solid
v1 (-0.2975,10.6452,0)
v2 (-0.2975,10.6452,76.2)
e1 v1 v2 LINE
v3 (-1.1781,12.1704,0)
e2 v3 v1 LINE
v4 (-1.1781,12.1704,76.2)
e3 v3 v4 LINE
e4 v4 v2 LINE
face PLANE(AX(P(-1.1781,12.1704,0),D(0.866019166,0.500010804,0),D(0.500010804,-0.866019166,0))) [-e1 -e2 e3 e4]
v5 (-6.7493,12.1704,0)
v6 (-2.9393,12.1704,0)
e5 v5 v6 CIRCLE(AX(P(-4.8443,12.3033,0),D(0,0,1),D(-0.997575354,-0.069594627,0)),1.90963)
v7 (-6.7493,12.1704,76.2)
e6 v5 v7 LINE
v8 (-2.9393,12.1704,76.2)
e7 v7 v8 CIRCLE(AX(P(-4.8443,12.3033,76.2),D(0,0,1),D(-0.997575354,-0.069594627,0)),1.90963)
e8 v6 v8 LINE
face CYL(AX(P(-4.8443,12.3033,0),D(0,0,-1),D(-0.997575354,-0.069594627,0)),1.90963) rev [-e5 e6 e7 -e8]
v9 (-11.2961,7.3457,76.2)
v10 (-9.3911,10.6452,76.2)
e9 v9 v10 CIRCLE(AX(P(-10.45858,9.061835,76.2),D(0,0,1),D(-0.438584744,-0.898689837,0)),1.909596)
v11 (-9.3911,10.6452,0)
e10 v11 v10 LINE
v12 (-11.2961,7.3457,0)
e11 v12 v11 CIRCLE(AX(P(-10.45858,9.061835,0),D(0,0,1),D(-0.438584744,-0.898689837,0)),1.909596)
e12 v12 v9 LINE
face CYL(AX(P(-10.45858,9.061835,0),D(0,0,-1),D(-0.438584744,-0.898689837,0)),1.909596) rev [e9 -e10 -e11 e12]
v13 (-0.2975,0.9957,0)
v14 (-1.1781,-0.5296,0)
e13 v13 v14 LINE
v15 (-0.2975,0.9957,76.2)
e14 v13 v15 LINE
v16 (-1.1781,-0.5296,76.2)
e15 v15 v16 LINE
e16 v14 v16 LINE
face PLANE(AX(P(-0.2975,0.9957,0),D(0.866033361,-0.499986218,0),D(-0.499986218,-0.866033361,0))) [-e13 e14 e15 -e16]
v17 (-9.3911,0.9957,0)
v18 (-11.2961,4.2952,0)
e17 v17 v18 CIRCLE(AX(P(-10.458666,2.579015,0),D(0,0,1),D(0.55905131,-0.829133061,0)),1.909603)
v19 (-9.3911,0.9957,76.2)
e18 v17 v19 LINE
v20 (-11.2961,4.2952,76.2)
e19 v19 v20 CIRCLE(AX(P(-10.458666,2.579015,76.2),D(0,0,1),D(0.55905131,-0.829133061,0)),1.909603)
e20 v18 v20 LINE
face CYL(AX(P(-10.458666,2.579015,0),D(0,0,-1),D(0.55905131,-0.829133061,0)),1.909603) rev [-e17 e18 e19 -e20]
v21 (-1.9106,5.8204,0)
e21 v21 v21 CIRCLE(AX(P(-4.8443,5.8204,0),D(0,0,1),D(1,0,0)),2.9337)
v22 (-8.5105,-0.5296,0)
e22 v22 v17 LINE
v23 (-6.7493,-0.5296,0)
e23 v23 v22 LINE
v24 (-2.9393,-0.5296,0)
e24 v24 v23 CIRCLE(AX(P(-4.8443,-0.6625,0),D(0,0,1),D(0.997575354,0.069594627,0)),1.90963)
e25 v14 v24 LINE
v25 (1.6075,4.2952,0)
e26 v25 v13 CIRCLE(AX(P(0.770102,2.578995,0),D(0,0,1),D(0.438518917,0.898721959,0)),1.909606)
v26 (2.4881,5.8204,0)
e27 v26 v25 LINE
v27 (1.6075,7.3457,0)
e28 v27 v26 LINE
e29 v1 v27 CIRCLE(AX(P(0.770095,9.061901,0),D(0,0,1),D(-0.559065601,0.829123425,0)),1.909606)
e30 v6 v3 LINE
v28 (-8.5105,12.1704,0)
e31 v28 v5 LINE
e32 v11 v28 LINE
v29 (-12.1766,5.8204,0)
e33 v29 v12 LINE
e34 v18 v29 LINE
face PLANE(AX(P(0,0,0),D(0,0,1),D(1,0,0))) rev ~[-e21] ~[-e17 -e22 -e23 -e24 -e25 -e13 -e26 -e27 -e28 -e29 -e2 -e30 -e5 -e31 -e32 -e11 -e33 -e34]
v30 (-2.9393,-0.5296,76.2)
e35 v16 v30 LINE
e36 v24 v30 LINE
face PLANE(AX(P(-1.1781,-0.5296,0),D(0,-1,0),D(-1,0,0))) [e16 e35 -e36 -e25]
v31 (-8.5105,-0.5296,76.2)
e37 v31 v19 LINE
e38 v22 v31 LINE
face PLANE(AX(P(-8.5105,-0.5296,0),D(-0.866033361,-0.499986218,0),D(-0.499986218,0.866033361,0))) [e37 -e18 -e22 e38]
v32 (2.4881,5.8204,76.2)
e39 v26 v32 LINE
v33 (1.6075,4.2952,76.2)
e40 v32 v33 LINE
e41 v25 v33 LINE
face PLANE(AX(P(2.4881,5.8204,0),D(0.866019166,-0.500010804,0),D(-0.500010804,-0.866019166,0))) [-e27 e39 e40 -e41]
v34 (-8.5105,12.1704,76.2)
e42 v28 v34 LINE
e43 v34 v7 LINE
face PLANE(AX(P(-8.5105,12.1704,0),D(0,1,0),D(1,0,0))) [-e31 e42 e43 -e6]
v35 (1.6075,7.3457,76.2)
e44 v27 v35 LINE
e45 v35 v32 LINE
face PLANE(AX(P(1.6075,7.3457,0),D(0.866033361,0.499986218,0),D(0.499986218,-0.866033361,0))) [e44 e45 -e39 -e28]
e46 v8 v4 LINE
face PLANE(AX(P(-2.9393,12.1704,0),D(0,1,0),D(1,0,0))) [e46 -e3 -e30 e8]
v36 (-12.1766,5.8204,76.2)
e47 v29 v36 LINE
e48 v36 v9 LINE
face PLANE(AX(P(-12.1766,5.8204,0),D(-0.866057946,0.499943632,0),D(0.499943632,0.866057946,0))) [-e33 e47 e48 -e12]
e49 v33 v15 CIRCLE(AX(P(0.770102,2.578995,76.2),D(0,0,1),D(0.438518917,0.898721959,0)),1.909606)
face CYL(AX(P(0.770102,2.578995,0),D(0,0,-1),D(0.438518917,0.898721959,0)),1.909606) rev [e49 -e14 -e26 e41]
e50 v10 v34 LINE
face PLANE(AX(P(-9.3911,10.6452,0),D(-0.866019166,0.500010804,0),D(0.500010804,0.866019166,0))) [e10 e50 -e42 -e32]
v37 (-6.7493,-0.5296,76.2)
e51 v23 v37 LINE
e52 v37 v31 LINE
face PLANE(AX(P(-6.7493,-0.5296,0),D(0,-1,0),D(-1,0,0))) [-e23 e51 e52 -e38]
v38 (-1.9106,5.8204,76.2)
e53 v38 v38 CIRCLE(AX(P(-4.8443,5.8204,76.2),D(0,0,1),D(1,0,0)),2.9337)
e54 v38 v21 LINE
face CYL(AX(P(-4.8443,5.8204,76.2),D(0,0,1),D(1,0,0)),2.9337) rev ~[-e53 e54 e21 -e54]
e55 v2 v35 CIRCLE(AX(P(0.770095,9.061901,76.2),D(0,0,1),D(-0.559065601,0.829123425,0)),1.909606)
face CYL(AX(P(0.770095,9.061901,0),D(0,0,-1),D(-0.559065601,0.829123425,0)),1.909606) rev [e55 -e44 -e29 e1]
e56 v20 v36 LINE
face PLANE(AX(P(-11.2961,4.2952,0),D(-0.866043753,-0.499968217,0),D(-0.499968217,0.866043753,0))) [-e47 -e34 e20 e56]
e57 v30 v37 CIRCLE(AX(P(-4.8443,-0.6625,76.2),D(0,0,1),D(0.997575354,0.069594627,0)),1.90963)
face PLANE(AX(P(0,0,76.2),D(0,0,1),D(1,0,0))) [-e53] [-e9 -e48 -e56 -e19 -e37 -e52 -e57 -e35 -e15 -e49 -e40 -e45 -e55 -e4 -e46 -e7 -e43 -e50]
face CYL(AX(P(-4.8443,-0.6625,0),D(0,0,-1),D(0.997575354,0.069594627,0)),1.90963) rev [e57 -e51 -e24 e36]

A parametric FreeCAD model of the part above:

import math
import FreeCAD as App
import Part
import Sketcher
from FreeCAD import Vector
Q = App.Units.Quantity

doc = App.newDocument("Part")
body = doc.addObject("PartDesign::Body", "Body")

# Sketch on XY plane
sketch1 = body.newObject("Sketcher::SketchObject", "Sketch")
sketch1.AttachmentSupport = (doc.getObject("XY_Plane"), [""])
sketch1.MapMode = "FlatFace"
sketch1.addGeometry([
    Part.ArcOfCircle(Part.Circle(Vector(-4.8443, 12.3033, 0), Vector(0, 0, 1), 1.90963), math.radians(-176.009296), math.radians(-3.990704)),  # 0
    Part.LineSegment(Vector(-6.7493, 12.1704, 0), Vector(-8.5105, 12.1704, 0)),  # 1
    Part.LineSegment(Vector(-8.5105, 12.1704, 0), Vector(-9.3911, 10.6452, 0)),  # 2
    Part.ArcOfCircle(Part.Circle(Vector(-10.4586, 9.0619, 0), Vector(0, 0, 1), 1.909646), math.radians(-116.012225), math.radians(56.011177)),  # 3
    Part.LineSegment(Vector(-11.2961, 7.3457, 0), Vector(-12.1766, 5.8204, 0)),  # 4
    Part.LineSegment(Vector(-12.1766, 5.8204, 0), Vector(-11.2961, 4.2952, 0)),  # 5
    Part.ArcOfCircle(Part.Circle(Vector(-10.4586, 2.579, 0), Vector(0, 0, 1), 1.909554), math.radians(-56.011177), math.radians(116.012225)),  # 6
    Part.LineSegment(Vector(-9.3911, 0.9957, 0), Vector(-8.5105, -0.5296, 0)),  # 7
    Part.LineSegment(Vector(-8.5105, -0.5296, 0), Vector(-6.7493, -0.5296, 0)),  # 8
    Part.ArcOfCircle(Part.Circle(Vector(-4.8443, -0.6625, 0), Vector(0, 0, 1), 1.90963), math.radians(3.990704), math.radians(176.009296)),  # 9
    Part.LineSegment(Vector(-2.9393, -0.5296, 0), Vector(-1.1781, -0.5296, 0)),  # 10
    Part.LineSegment(Vector(-1.1781, -0.5296, 0), Vector(-0.2975, 0.9957, 0)),  # 11
    Part.ArcOfCircle(Part.Circle(Vector(0.7701, 2.579, 0), Vector(0, 0, 1), 1.909602), math.radians(63.990472), math.radians(236.008689)),  # 12
    Part.LineSegment(Vector(1.6075, 4.2952, 0), Vector(2.4881, 5.8204, 0)),  # 13
    Part.LineSegment(Vector(2.4881, 5.8204, 0), Vector(1.6075, 7.3457, 0)),  # 14
    Part.ArcOfCircle(Part.Circle(Vector(0.7701, 9.0619, 0), Vector(0, 0, 1), 1.90961), math.radians(123.991311), math.radians(296.009528)),  # 15
    Part.LineSegment(Vector(-0.2975, 10.6452, 0), Vector(-1.1781, 12.1704, 0)),  # 16
    Part.LineSegment(Vector(-1.1781, 12.1704, 0), Vector(-2.9393, 12.1704, 0)),  # 17
], False)
sketch1.addConstraint([
    Sketcher.Constraint("Coincident", 0, 1, 1, 1),
    Sketcher.Constraint("Coincident", 1, 2, 2, 1),
    Sketcher.Constraint("Coincident", 2, 2, 3, 2),
    Sketcher.Constraint("Coincident", 3, 1, 4, 1),
    Sketcher.Constraint("Coincident", 4, 2, 5, 1),
    Sketcher.Constraint("Coincident", 5, 2, 6, 2),
    Sketcher.Constraint("Coincident", 6, 1, 7, 1),
    Sketcher.Constraint("Coincident", 7, 2, 8, 1),
    Sketcher.Constraint("Coincident", 8, 2, 9, 2),
    Sketcher.Constraint("Coincident", 9, 1, 10, 1),
    Sketcher.Constraint("Coincident", 10, 2, 11, 1),
    Sketcher.Constraint("Coincident", 11, 2, 12, 2),
    Sketcher.Constraint("Coincident", 12, 1, 13, 1),
    Sketcher.Constraint("Coincident", 13, 2, 14, 1),
    Sketcher.Constraint("Coincident", 14, 2, 15, 2),
    Sketcher.Constraint("Coincident", 15, 1, 16, 1),
    Sketcher.Constraint("Coincident", 16, 2, 17, 1),
    Sketcher.Constraint("Coincident", 17, 2, 0, 2),
    Sketcher.Constraint("Horizontal", 1),
    Sketcher.Constraint("Horizontal", 8),
    Sketcher.Constraint("Horizontal", 10),
    Sketcher.Constraint("Horizontal", 17),
    Sketcher.Constraint("Radius", 0, Q("1.9096 mm")),
    Sketcher.Constraint("Radius", 3, Q("1.9096 mm")),
    Sketcher.Constraint("Radius", 6, Q("1.9096 mm")),
    Sketcher.Constraint("Radius", 9, Q("1.9096 mm")),
    Sketcher.Constraint("Radius", 12, Q("1.9096 mm")),
    Sketcher.Constraint("Radius", 15, Q("1.9096 mm")),
    Sketcher.Constraint("DistanceY", 4, 2, 1, 2, Q("0.25 in")),
    Sketcher.Constraint("DistanceY", 5, 2, 2, 2, Q("0.25 in")),
    Sketcher.Constraint("DistanceY", 6, 1, 3, 1, Q("0.25 in")),
    Sketcher.Constraint("DistanceY", 7, 2, 4, 2, Q("0.25 in")),
    Sketcher.Constraint("DistanceX", 8, 2, 9, 1, Q("0.15 in")),
    Sketcher.Constraint("DistanceY", 10, 2, 13, 2, Q("0.25 in")),
    Sketcher.Constraint("DistanceY", 11, 2, 14, 2, Q("0.25 in")),
    Sketcher.Constraint("DistanceY", 12, 1, 15, 1, Q("0.25 in")),
    Sketcher.Constraint("DistanceX", 0, 1, 17, 2, Q("0.15 in")),
    Sketcher.Constraint("DistanceY", -1, 1, 0, 3, Q("0.4843819 in")),
    Sketcher.Constraint("DistanceX", 0, 1, 0, 3, Q("0.075 in")),
    Sketcher.Constraint("DistanceX", 2, 2, 0, 1, Q("0.104 in")),
    Sketcher.Constraint("DistanceX", 3, 1, 2, 2, Q("0.075 in")),
    Sketcher.Constraint("DistanceX", 5, 2, 2, 2, Q("0.075 in")),
    Sketcher.Constraint("DistanceX", 5, 2, 6, 1, Q("0.075 in")),
    Sketcher.Constraint("DistanceX", 6, 1, 9, 3, Q("0.179 in")),
    Sketcher.Constraint("DistanceX", 8, 2, 9, 3, Q("0.075 in")),
    Sketcher.Constraint("DistanceX", 9, 1, 11, 2, Q("0.104 in")),
    Sketcher.Constraint("DistanceX", 11, 2, 12, 1, Q("0.075 in")),
    Sketcher.Constraint("DistanceX", 11, 2, 14, 2, Q("0.075 in")),
    Sketcher.Constraint("DistanceX", 15, 1, 14, 2, Q("0.075 in")),
    Sketcher.Constraint("DistanceX", 1, 2, 1, 1, Q("1.7612 mm")),
    Sketcher.Constraint("DistanceX", 8, 1, 8, 2, Q("1.7612 mm")),
    Sketcher.Constraint("DistanceX", 10, 1, 10, 2, Q("1.7612 mm")),
    Sketcher.Constraint("DistanceX", 17, 2, 17, 1, Q("1.7612 mm")),
    Sketcher.Constraint("DistanceY", -1, 1, 2, 2, Q("0.4191 in")),
    Sketcher.Constraint("DistanceY", -1, 1, 3, 1, Q("0.2892 in")),
    Sketcher.Constraint("DistanceX", 4, 2, -1, 1, Q("0.4794 in")),
    Sketcher.Constraint("DistanceY", -1, 1, 11, 2, Q("0.0392 in")),
    Sketcher.Constraint("DistanceY", -1, 1, 12, 1, Q("0.1691 in")),
    Sketcher.Constraint("Distance", 4, Q("1.7612 mm")),
    Sketcher.Constraint("Distance", 13, Q("1.7612 mm")),
])
pad1 = body.newObject("PartDesign::Pad", "Pad")
pad1.Profile = sketch1
pad1.Length = Q("3 in")

# Sketch on XY plane
sketch2 = body.newObject("Sketcher::SketchObject", "Sketch001")
sketch2.AttachmentSupport = (doc.getObject("XY_Plane"), [""])
sketch2.MapMode = "FlatFace"
sketch2.AttachmentOffset = App.Placement(Vector(0, 0, 3 * 25.4), App.Rotation())
sketch2.addGeometry(Part.Circle(Vector(-4.8, 5.8, 0), Vector(0, 0, 1), 2.9), False)
sketch2.addConstraint([
    Sketcher.Constraint("Diameter", 0, Q("0.231 in")),
    Sketcher.Constraint("DistanceX", 0, 3, -1, 1, Q("4.8443 mm")),
    Sketcher.Constraint("DistanceY", -1, 1, 0, 3, Q("5.8204 mm")),
])
pocket1 = body.newObject("PartDesign::Pocket", "Pocket")
pocket1.Profile = sketch2
pocket1.Length = Q("3 in")

doc.recompute()
